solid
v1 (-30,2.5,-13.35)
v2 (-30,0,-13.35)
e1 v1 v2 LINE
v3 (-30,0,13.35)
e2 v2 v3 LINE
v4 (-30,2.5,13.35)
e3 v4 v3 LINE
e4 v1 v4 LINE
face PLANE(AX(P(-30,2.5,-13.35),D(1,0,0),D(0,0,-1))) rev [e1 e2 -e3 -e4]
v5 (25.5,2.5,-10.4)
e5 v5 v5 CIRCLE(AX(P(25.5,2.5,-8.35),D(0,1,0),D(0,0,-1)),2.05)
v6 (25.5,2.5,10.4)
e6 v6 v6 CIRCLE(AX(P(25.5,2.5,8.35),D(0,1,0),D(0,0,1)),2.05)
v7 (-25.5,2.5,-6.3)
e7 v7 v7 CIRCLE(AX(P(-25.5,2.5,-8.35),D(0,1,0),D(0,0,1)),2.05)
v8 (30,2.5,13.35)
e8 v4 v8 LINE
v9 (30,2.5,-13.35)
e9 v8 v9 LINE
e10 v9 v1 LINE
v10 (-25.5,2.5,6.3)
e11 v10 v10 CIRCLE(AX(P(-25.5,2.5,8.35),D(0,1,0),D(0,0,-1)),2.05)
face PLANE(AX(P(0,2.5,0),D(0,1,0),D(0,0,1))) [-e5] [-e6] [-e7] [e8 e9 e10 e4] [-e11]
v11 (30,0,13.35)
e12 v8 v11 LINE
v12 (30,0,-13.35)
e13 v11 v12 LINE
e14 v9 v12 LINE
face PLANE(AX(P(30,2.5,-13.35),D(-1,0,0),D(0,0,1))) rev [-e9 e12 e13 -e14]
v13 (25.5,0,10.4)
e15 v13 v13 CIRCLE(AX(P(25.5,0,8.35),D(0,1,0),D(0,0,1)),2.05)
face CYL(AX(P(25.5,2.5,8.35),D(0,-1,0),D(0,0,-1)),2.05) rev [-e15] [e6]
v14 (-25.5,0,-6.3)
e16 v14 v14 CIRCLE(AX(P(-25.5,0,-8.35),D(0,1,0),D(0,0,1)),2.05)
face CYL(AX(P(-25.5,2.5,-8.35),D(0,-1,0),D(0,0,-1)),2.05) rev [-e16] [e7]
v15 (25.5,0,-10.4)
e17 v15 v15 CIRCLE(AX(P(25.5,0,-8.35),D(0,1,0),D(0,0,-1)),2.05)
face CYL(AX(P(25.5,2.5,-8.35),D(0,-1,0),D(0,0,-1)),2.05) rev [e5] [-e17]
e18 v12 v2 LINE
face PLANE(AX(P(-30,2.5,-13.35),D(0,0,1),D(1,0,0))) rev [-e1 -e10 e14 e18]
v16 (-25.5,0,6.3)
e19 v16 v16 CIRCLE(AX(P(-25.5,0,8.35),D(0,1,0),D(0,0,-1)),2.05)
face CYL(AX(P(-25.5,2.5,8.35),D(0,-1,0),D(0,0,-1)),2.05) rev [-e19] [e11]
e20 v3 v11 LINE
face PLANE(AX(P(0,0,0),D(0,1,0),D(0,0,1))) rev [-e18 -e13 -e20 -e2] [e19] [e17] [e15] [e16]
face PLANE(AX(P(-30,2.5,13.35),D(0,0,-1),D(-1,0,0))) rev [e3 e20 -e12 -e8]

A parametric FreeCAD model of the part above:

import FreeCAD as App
import Part
import Sketcher
from FreeCAD import Vector


def add_polygon(sketch, points):
    """Adds a closed chain of lines whose ends are joined by coincident constraints."""
    first, n = sketch.GeometryCount, len(points)
    for a, b in zip(points, points[1:] + points[:1]):
        sketch.addGeometry(Part.LineSegment(App.Vector(*a, 0), App.Vector(*b, 0)), False)
    for i in range(n):
        sketch.addConstraint(Sketcher.Constraint("Coincident", first + i, 2, first + (i + 1) % n, 1))

doc = App.newDocument("Part")
body = doc.addObject("PartDesign::Body", "Body")

# Sketch on XZ plane
sketch1 = doc.addObject("Sketcher::SketchObject", "Sketch")
body.addObject(sketch1)
sketch1.AttachmentSupport = (doc.XZ_Plane, [""])
sketch1.MapMode = "FlatFace"
add_polygon(sketch1, [(-30, -13.35), (-30, 13.35), (30, 13.35), (30, -13.35)])  # lines 0-3
sketch1.addGeometry(Part.Circle(Vector(-25.5, 8.35, 0), Vector(0, 0, 1), 2.05), False)  # 4
sketch1.addGeometry(Part.Circle(Vector(25.5, 8.35, 0), Vector(0, 0, 1), 2.05), False)  # 5
sketch1.addGeometry(Part.Circle(Vector(-25.5, -8.35, 0), Vector(0, 0, 1), 2.05), False)  # 6
sketch1.addGeometry(Part.Circle(Vector(25.5, -8.35, 0), Vector(0, 0, 1), 2.05), False)  # 7
sketch1.addConstraint([
    Sketcher.Constraint("Vertical", 0),
    Sketcher.Constraint("Horizontal", 1),
    Sketcher.Constraint("Vertical", 2),
    Sketcher.Constraint("Horizontal", 3),
    Sketcher.Constraint("Equal", 4, 5),
    Sketcher.Constraint("Equal", 5, 6),
    Sketcher.Constraint("Equal", 6, 7),
    Sketcher.Constraint("Symmetric", 5, 3, 6, 3, -1, 1),
    Sketcher.Constraint("Symmetric", 4, 3, 7, 3, -1, 1),
    Sketcher.Constraint("Symmetric", 0, 2, 2, 2, -1, 1),
    Sketcher.Constraint("Symmetric", 4, 3, 5, 3, -2),
    Sketcher.Constraint("Diameter", 4, 4.1),
    Sketcher.Constraint("DistanceX", 1, 1, 1, 2, 60.0),
    Sketcher.Constraint("DistanceY", 0, 1, 0, 2, 26.7),
    Sketcher.Constraint("DistanceX", 4, 3, 5, 3, 51.0),
    Sketcher.Constraint("DistanceY", 4, 3, 0, 2, 5.0),
])
pad1 = doc.addObject("PartDesign::Pad", "Pad")
body.addObject(pad1)
pad1.Profile = sketch1
pad1.Length = 2.5
pad1.Reversed = True

doc.recompute()
